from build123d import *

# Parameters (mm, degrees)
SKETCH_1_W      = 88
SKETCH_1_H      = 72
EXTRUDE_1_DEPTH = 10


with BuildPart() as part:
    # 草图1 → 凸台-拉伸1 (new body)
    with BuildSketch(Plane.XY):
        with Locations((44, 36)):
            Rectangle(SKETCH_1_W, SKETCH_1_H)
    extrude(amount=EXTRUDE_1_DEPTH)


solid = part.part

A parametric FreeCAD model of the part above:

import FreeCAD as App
import Part
import Sketcher

V = App.Vector
Q = App.Units.Quantity


def add_polygon(sketch, points):
    """Adds a closed chain of lines whose ends are joined by coincident constraints."""
    first, n = sketch.GeometryCount, len(points)
    for a, b in zip(points, points[1:] + points[:1]):
        sketch.addGeometry(Part.LineSegment(App.Vector(*a, 0), App.Vector(*b, 0)), False)
    for i in range(n):
        sketch.addConstraint(Sketcher.Constraint("Coincident", first + i, 2, first + (i + 1) % n, 1))

doc = App.newDocument("Part")
body = doc.addObject("PartDesign::Body", "Body")

# Sketch on XY plane
sketch1 = body.newObject("Sketcher::SketchObject", "Sketch")
sketch1.AttachmentSupport = (doc.getObject("XY_Plane"), [""])
sketch1.MapMode = "FlatFace"
add_polygon(sketch1, [(0, 72), (0, 0), (88, 0), (88, 72)])  # lines 0-3
sketch1.addConstraint([
    Sketcher.Constraint("Vertical", 0),
    Sketcher.Constraint("Horizontal", 1),
    Sketcher.Constraint("Vertical", 2),
    Sketcher.Constraint("Horizontal", 3),
    Sketcher.Constraint("Coincident", 0, 2, -1, 1),
    Sketcher.Constraint("DistanceX", 1, 1, 1, 2, Q("88 mm")),
    Sketcher.Constraint("DistanceY", 0, 2, 0, 1, Q("72 mm")),
])
pad1 = body.newObject("PartDesign::Pad", "Pad")
pad1.Profile = sketch1
pad1.Length = 10

doc.recompute()
